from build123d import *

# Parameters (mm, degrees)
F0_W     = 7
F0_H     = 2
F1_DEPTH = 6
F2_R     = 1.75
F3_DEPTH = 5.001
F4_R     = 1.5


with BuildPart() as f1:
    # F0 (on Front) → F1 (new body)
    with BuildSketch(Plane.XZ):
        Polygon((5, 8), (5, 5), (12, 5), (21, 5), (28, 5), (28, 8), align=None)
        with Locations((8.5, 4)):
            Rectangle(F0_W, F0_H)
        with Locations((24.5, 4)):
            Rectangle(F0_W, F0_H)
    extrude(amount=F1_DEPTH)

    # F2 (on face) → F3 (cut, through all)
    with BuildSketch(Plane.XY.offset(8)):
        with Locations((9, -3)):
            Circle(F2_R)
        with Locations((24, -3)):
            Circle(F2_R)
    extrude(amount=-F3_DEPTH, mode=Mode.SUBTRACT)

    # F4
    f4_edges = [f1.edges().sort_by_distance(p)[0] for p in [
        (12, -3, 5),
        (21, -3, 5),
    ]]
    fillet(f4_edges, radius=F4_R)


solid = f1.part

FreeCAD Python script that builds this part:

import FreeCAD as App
import Part
import Sketcher
from FreeCAD import Vector
Q = App.Units.Quantity


def edges_at(feature, points):
    """Names of the edges that pass closest to the given points."""
    edges = feature.Shape.Edges
    near = lambda p: min(range(len(edges)), key=lambda i: edges[i].distToShape(Part.Vertex(*p))[0])
    return sorted({f"Edge{near(p) + 1}" for p in points})

doc = App.newDocument("Part")
body = doc.addObject("PartDesign::Body", "Body")

# Sketch on XZ plane
sketch1 = doc.addObject("Sketcher::SketchObject", "Sketch")
body.addObject(sketch1)
sketch1.AttachmentSupport = (doc.XZ_Plane, [""])
sketch1.MapMode = "FlatFace"
sketch1.addGeometry(Part.LineSegment(Vector(5, 8, 0), Vector(5, 3, 0)), False)
sketch1.addGeometry(Part.LineSegment(Vector(5, 3, 0), Vector(12, 3, 0)), False)
sketch1.addGeometry(Part.LineSegment(Vector(12, 3, 0), Vector(12, 5, 0)), False)
sketch1.addGeometry(Part.LineSegment(Vector(12, 5, 0), Vector(21, 5, 0)), False)
sketch1.addGeometry(Part.LineSegment(Vector(21, 5, 0), Vector(21, 3, 0)), False)
sketch1.addGeometry(Part.LineSegment(Vector(21, 3, 0), Vector(28, 3, 0)), False)
sketch1.addGeometry(Part.LineSegment(Vector(28, 3, 0), Vector(28, 8, 0)), False)
sketch1.addGeometry(Part.LineSegment(Vector(28, 8, 0), Vector(5, 8, 0)), False)
sketch1.addConstraint(Sketcher.Constraint("Coincident", 0, 2, 1, 1))
sketch1.addConstraint(Sketcher.Constraint("Coincident", 1, 2, 2, 1))
sketch1.addConstraint(Sketcher.Constraint("Coincident", 2, 2, 3, 1))
sketch1.addConstraint(Sketcher.Constraint("Coincident", 3, 2, 4, 1))
sketch1.addConstraint(Sketcher.Constraint("Coincident", 4, 2, 5, 1))
sketch1.addConstraint(Sketcher.Constraint("Coincident", 5, 2, 6, 1))
sketch1.addConstraint(Sketcher.Constraint("Coincident", 6, 2, 7, 1))
sketch1.addConstraint(Sketcher.Constraint("Coincident", 7, 2, 0, 1))
sketch1.addConstraint(Sketcher.Constraint("Vertical", 0))
sketch1.addConstraint(Sketcher.Constraint("Horizontal", 1))
sketch1.addConstraint(Sketcher.Constraint("Vertical", 2))
sketch1.addConstraint(Sketcher.Constraint("Horizontal", 3))
sketch1.addConstraint(Sketcher.Constraint("Vertical", 4))
sketch1.addConstraint(Sketcher.Constraint("Horizontal", 5))
sketch1.addConstraint(Sketcher.Constraint("Vertical", 6))
sketch1.addConstraint(Sketcher.Constraint("Horizontal", 7))
sketch1.addConstraint(Sketcher.Constraint("Horizontal", 1, 2, 4, 2))
sketch1.addConstraint(Sketcher.Constraint("Equal", 1, 5))
sketch1.addConstraint(Sketcher.Constraint("DistanceX", 1, 1, 1, 2, Q("7 mm")))
sketch1.addConstraint(Sketcher.Constraint("DistanceX", 3, 1, 3, 2, Q("9 mm")))
sketch1.addConstraint(Sketcher.Constraint("DistanceY", 0, 2, 0, 1, Q("5 mm")))
sketch1.addConstraint(Sketcher.Constraint("DistanceY", 2, 1, 2, 2, Q("2 mm")))
sketch1.addConstraint(Sketcher.Constraint("DistanceX", -1, 1, 0, 2, Q("5 mm")))
sketch1.addConstraint(Sketcher.Constraint("DistanceY", -1, 1, 0, 2, Q("3 mm")))
pad1 = doc.addObject("PartDesign::Pad", "Pad")
body.addObject(pad1)
pad1.Profile = sketch1
pad1.Length = 6

# Sketch on XY plane
sketch2 = doc.addObject("Sketcher::SketchObject", "Sketch001")
body.addObject(sketch2)
sketch2.AttachmentSupport = (doc.XY_Plane, [""])
sketch2.MapMode = "FlatFace"
sketch2.AttachmentOffset = App.Placement(Vector(0, 0, 8), App.Rotation())
sketch2.addGeometry(Part.Circle(Vector(9, -3, 0), Vector(0, 0, 1), 1.8), False)
sketch2.addGeometry(Part.Circle(Vector(24, -3, 0), Vector(0, 0, 1), 1.8), False)
sketch2.addConstraint(Sketcher.Constraint("Equal", 0, 1))
sketch2.addConstraint(Sketcher.Constraint("Horizontal", 0, 3, 1, 3))
sketch2.addConstraint(Sketcher.Constraint("Diameter", 0, Q("3.5 mm")))
sketch2.addConstraint(Sketcher.Constraint("DistanceX", -1, 1, 0, 3, Q("9 mm")))
sketch2.addConstraint(Sketcher.Constraint("DistanceY", 0, 3, -1, 1, Q("3 mm")))
sketch2.addConstraint(Sketcher.Constraint("DistanceX", -1, 1, 1, 3, Q("24 mm")))
pocket1 = doc.addObject("PartDesign::Pocket", "Pocket")
body.addObject(pocket1)
pocket1.Profile = sketch2
pocket1.Type = "ThroughAll"
doc.recompute()

fillet = doc.addObject("PartDesign::Fillet", "Fillet")
body.addObject(fillet)
fillet.Base = (pocket1, edges_at(pocket1, [(12, -3, 5), (21, -3, 5)]))
fillet.Radius = 1.5

doc.recompute()
